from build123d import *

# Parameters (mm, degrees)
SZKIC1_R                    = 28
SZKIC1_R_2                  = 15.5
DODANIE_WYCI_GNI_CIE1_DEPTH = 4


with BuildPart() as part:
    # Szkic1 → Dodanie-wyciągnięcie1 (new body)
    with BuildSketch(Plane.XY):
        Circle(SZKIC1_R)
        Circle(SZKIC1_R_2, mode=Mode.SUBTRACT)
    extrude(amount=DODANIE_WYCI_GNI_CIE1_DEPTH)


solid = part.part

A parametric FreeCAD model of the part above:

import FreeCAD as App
import Part
import Sketcher

V = App.Vector
Q = App.Units.Quantity

doc = App.newDocument("Part")
body = doc.addObject("PartDesign::Body", "Body")

# Sketch on XY plane
sketch1 = body.newObject("Sketcher::SketchObject", "Sketch")
sketch1.AttachmentSupport = (doc.getObject("XY_Plane"), [""])
sketch1.MapMode = "FlatFace"
sketch1.addGeometry([
    Part.Circle(V(0, 0, 0), V(0, 0, 1), 28),
    Part.Circle(V(0, 0, 0), V(0, 0, 1), 15.5),
], False)
sketch1.addConstraint([
    Sketcher.Constraint("Coincident", 0, 3, -1, 1),
    Sketcher.Constraint("Coincident", 1, 3, -1, 1),
    Sketcher.Constraint("Diameter", 0, Q("56 mm")),
    Sketcher.Constraint("Diameter", 1, Q("31 mm")),
])
pad1 = body.newObject("PartDesign::Pad", "Pad")
pad1.Profile = sketch1
pad1.Length = 4

doc.recompute()
